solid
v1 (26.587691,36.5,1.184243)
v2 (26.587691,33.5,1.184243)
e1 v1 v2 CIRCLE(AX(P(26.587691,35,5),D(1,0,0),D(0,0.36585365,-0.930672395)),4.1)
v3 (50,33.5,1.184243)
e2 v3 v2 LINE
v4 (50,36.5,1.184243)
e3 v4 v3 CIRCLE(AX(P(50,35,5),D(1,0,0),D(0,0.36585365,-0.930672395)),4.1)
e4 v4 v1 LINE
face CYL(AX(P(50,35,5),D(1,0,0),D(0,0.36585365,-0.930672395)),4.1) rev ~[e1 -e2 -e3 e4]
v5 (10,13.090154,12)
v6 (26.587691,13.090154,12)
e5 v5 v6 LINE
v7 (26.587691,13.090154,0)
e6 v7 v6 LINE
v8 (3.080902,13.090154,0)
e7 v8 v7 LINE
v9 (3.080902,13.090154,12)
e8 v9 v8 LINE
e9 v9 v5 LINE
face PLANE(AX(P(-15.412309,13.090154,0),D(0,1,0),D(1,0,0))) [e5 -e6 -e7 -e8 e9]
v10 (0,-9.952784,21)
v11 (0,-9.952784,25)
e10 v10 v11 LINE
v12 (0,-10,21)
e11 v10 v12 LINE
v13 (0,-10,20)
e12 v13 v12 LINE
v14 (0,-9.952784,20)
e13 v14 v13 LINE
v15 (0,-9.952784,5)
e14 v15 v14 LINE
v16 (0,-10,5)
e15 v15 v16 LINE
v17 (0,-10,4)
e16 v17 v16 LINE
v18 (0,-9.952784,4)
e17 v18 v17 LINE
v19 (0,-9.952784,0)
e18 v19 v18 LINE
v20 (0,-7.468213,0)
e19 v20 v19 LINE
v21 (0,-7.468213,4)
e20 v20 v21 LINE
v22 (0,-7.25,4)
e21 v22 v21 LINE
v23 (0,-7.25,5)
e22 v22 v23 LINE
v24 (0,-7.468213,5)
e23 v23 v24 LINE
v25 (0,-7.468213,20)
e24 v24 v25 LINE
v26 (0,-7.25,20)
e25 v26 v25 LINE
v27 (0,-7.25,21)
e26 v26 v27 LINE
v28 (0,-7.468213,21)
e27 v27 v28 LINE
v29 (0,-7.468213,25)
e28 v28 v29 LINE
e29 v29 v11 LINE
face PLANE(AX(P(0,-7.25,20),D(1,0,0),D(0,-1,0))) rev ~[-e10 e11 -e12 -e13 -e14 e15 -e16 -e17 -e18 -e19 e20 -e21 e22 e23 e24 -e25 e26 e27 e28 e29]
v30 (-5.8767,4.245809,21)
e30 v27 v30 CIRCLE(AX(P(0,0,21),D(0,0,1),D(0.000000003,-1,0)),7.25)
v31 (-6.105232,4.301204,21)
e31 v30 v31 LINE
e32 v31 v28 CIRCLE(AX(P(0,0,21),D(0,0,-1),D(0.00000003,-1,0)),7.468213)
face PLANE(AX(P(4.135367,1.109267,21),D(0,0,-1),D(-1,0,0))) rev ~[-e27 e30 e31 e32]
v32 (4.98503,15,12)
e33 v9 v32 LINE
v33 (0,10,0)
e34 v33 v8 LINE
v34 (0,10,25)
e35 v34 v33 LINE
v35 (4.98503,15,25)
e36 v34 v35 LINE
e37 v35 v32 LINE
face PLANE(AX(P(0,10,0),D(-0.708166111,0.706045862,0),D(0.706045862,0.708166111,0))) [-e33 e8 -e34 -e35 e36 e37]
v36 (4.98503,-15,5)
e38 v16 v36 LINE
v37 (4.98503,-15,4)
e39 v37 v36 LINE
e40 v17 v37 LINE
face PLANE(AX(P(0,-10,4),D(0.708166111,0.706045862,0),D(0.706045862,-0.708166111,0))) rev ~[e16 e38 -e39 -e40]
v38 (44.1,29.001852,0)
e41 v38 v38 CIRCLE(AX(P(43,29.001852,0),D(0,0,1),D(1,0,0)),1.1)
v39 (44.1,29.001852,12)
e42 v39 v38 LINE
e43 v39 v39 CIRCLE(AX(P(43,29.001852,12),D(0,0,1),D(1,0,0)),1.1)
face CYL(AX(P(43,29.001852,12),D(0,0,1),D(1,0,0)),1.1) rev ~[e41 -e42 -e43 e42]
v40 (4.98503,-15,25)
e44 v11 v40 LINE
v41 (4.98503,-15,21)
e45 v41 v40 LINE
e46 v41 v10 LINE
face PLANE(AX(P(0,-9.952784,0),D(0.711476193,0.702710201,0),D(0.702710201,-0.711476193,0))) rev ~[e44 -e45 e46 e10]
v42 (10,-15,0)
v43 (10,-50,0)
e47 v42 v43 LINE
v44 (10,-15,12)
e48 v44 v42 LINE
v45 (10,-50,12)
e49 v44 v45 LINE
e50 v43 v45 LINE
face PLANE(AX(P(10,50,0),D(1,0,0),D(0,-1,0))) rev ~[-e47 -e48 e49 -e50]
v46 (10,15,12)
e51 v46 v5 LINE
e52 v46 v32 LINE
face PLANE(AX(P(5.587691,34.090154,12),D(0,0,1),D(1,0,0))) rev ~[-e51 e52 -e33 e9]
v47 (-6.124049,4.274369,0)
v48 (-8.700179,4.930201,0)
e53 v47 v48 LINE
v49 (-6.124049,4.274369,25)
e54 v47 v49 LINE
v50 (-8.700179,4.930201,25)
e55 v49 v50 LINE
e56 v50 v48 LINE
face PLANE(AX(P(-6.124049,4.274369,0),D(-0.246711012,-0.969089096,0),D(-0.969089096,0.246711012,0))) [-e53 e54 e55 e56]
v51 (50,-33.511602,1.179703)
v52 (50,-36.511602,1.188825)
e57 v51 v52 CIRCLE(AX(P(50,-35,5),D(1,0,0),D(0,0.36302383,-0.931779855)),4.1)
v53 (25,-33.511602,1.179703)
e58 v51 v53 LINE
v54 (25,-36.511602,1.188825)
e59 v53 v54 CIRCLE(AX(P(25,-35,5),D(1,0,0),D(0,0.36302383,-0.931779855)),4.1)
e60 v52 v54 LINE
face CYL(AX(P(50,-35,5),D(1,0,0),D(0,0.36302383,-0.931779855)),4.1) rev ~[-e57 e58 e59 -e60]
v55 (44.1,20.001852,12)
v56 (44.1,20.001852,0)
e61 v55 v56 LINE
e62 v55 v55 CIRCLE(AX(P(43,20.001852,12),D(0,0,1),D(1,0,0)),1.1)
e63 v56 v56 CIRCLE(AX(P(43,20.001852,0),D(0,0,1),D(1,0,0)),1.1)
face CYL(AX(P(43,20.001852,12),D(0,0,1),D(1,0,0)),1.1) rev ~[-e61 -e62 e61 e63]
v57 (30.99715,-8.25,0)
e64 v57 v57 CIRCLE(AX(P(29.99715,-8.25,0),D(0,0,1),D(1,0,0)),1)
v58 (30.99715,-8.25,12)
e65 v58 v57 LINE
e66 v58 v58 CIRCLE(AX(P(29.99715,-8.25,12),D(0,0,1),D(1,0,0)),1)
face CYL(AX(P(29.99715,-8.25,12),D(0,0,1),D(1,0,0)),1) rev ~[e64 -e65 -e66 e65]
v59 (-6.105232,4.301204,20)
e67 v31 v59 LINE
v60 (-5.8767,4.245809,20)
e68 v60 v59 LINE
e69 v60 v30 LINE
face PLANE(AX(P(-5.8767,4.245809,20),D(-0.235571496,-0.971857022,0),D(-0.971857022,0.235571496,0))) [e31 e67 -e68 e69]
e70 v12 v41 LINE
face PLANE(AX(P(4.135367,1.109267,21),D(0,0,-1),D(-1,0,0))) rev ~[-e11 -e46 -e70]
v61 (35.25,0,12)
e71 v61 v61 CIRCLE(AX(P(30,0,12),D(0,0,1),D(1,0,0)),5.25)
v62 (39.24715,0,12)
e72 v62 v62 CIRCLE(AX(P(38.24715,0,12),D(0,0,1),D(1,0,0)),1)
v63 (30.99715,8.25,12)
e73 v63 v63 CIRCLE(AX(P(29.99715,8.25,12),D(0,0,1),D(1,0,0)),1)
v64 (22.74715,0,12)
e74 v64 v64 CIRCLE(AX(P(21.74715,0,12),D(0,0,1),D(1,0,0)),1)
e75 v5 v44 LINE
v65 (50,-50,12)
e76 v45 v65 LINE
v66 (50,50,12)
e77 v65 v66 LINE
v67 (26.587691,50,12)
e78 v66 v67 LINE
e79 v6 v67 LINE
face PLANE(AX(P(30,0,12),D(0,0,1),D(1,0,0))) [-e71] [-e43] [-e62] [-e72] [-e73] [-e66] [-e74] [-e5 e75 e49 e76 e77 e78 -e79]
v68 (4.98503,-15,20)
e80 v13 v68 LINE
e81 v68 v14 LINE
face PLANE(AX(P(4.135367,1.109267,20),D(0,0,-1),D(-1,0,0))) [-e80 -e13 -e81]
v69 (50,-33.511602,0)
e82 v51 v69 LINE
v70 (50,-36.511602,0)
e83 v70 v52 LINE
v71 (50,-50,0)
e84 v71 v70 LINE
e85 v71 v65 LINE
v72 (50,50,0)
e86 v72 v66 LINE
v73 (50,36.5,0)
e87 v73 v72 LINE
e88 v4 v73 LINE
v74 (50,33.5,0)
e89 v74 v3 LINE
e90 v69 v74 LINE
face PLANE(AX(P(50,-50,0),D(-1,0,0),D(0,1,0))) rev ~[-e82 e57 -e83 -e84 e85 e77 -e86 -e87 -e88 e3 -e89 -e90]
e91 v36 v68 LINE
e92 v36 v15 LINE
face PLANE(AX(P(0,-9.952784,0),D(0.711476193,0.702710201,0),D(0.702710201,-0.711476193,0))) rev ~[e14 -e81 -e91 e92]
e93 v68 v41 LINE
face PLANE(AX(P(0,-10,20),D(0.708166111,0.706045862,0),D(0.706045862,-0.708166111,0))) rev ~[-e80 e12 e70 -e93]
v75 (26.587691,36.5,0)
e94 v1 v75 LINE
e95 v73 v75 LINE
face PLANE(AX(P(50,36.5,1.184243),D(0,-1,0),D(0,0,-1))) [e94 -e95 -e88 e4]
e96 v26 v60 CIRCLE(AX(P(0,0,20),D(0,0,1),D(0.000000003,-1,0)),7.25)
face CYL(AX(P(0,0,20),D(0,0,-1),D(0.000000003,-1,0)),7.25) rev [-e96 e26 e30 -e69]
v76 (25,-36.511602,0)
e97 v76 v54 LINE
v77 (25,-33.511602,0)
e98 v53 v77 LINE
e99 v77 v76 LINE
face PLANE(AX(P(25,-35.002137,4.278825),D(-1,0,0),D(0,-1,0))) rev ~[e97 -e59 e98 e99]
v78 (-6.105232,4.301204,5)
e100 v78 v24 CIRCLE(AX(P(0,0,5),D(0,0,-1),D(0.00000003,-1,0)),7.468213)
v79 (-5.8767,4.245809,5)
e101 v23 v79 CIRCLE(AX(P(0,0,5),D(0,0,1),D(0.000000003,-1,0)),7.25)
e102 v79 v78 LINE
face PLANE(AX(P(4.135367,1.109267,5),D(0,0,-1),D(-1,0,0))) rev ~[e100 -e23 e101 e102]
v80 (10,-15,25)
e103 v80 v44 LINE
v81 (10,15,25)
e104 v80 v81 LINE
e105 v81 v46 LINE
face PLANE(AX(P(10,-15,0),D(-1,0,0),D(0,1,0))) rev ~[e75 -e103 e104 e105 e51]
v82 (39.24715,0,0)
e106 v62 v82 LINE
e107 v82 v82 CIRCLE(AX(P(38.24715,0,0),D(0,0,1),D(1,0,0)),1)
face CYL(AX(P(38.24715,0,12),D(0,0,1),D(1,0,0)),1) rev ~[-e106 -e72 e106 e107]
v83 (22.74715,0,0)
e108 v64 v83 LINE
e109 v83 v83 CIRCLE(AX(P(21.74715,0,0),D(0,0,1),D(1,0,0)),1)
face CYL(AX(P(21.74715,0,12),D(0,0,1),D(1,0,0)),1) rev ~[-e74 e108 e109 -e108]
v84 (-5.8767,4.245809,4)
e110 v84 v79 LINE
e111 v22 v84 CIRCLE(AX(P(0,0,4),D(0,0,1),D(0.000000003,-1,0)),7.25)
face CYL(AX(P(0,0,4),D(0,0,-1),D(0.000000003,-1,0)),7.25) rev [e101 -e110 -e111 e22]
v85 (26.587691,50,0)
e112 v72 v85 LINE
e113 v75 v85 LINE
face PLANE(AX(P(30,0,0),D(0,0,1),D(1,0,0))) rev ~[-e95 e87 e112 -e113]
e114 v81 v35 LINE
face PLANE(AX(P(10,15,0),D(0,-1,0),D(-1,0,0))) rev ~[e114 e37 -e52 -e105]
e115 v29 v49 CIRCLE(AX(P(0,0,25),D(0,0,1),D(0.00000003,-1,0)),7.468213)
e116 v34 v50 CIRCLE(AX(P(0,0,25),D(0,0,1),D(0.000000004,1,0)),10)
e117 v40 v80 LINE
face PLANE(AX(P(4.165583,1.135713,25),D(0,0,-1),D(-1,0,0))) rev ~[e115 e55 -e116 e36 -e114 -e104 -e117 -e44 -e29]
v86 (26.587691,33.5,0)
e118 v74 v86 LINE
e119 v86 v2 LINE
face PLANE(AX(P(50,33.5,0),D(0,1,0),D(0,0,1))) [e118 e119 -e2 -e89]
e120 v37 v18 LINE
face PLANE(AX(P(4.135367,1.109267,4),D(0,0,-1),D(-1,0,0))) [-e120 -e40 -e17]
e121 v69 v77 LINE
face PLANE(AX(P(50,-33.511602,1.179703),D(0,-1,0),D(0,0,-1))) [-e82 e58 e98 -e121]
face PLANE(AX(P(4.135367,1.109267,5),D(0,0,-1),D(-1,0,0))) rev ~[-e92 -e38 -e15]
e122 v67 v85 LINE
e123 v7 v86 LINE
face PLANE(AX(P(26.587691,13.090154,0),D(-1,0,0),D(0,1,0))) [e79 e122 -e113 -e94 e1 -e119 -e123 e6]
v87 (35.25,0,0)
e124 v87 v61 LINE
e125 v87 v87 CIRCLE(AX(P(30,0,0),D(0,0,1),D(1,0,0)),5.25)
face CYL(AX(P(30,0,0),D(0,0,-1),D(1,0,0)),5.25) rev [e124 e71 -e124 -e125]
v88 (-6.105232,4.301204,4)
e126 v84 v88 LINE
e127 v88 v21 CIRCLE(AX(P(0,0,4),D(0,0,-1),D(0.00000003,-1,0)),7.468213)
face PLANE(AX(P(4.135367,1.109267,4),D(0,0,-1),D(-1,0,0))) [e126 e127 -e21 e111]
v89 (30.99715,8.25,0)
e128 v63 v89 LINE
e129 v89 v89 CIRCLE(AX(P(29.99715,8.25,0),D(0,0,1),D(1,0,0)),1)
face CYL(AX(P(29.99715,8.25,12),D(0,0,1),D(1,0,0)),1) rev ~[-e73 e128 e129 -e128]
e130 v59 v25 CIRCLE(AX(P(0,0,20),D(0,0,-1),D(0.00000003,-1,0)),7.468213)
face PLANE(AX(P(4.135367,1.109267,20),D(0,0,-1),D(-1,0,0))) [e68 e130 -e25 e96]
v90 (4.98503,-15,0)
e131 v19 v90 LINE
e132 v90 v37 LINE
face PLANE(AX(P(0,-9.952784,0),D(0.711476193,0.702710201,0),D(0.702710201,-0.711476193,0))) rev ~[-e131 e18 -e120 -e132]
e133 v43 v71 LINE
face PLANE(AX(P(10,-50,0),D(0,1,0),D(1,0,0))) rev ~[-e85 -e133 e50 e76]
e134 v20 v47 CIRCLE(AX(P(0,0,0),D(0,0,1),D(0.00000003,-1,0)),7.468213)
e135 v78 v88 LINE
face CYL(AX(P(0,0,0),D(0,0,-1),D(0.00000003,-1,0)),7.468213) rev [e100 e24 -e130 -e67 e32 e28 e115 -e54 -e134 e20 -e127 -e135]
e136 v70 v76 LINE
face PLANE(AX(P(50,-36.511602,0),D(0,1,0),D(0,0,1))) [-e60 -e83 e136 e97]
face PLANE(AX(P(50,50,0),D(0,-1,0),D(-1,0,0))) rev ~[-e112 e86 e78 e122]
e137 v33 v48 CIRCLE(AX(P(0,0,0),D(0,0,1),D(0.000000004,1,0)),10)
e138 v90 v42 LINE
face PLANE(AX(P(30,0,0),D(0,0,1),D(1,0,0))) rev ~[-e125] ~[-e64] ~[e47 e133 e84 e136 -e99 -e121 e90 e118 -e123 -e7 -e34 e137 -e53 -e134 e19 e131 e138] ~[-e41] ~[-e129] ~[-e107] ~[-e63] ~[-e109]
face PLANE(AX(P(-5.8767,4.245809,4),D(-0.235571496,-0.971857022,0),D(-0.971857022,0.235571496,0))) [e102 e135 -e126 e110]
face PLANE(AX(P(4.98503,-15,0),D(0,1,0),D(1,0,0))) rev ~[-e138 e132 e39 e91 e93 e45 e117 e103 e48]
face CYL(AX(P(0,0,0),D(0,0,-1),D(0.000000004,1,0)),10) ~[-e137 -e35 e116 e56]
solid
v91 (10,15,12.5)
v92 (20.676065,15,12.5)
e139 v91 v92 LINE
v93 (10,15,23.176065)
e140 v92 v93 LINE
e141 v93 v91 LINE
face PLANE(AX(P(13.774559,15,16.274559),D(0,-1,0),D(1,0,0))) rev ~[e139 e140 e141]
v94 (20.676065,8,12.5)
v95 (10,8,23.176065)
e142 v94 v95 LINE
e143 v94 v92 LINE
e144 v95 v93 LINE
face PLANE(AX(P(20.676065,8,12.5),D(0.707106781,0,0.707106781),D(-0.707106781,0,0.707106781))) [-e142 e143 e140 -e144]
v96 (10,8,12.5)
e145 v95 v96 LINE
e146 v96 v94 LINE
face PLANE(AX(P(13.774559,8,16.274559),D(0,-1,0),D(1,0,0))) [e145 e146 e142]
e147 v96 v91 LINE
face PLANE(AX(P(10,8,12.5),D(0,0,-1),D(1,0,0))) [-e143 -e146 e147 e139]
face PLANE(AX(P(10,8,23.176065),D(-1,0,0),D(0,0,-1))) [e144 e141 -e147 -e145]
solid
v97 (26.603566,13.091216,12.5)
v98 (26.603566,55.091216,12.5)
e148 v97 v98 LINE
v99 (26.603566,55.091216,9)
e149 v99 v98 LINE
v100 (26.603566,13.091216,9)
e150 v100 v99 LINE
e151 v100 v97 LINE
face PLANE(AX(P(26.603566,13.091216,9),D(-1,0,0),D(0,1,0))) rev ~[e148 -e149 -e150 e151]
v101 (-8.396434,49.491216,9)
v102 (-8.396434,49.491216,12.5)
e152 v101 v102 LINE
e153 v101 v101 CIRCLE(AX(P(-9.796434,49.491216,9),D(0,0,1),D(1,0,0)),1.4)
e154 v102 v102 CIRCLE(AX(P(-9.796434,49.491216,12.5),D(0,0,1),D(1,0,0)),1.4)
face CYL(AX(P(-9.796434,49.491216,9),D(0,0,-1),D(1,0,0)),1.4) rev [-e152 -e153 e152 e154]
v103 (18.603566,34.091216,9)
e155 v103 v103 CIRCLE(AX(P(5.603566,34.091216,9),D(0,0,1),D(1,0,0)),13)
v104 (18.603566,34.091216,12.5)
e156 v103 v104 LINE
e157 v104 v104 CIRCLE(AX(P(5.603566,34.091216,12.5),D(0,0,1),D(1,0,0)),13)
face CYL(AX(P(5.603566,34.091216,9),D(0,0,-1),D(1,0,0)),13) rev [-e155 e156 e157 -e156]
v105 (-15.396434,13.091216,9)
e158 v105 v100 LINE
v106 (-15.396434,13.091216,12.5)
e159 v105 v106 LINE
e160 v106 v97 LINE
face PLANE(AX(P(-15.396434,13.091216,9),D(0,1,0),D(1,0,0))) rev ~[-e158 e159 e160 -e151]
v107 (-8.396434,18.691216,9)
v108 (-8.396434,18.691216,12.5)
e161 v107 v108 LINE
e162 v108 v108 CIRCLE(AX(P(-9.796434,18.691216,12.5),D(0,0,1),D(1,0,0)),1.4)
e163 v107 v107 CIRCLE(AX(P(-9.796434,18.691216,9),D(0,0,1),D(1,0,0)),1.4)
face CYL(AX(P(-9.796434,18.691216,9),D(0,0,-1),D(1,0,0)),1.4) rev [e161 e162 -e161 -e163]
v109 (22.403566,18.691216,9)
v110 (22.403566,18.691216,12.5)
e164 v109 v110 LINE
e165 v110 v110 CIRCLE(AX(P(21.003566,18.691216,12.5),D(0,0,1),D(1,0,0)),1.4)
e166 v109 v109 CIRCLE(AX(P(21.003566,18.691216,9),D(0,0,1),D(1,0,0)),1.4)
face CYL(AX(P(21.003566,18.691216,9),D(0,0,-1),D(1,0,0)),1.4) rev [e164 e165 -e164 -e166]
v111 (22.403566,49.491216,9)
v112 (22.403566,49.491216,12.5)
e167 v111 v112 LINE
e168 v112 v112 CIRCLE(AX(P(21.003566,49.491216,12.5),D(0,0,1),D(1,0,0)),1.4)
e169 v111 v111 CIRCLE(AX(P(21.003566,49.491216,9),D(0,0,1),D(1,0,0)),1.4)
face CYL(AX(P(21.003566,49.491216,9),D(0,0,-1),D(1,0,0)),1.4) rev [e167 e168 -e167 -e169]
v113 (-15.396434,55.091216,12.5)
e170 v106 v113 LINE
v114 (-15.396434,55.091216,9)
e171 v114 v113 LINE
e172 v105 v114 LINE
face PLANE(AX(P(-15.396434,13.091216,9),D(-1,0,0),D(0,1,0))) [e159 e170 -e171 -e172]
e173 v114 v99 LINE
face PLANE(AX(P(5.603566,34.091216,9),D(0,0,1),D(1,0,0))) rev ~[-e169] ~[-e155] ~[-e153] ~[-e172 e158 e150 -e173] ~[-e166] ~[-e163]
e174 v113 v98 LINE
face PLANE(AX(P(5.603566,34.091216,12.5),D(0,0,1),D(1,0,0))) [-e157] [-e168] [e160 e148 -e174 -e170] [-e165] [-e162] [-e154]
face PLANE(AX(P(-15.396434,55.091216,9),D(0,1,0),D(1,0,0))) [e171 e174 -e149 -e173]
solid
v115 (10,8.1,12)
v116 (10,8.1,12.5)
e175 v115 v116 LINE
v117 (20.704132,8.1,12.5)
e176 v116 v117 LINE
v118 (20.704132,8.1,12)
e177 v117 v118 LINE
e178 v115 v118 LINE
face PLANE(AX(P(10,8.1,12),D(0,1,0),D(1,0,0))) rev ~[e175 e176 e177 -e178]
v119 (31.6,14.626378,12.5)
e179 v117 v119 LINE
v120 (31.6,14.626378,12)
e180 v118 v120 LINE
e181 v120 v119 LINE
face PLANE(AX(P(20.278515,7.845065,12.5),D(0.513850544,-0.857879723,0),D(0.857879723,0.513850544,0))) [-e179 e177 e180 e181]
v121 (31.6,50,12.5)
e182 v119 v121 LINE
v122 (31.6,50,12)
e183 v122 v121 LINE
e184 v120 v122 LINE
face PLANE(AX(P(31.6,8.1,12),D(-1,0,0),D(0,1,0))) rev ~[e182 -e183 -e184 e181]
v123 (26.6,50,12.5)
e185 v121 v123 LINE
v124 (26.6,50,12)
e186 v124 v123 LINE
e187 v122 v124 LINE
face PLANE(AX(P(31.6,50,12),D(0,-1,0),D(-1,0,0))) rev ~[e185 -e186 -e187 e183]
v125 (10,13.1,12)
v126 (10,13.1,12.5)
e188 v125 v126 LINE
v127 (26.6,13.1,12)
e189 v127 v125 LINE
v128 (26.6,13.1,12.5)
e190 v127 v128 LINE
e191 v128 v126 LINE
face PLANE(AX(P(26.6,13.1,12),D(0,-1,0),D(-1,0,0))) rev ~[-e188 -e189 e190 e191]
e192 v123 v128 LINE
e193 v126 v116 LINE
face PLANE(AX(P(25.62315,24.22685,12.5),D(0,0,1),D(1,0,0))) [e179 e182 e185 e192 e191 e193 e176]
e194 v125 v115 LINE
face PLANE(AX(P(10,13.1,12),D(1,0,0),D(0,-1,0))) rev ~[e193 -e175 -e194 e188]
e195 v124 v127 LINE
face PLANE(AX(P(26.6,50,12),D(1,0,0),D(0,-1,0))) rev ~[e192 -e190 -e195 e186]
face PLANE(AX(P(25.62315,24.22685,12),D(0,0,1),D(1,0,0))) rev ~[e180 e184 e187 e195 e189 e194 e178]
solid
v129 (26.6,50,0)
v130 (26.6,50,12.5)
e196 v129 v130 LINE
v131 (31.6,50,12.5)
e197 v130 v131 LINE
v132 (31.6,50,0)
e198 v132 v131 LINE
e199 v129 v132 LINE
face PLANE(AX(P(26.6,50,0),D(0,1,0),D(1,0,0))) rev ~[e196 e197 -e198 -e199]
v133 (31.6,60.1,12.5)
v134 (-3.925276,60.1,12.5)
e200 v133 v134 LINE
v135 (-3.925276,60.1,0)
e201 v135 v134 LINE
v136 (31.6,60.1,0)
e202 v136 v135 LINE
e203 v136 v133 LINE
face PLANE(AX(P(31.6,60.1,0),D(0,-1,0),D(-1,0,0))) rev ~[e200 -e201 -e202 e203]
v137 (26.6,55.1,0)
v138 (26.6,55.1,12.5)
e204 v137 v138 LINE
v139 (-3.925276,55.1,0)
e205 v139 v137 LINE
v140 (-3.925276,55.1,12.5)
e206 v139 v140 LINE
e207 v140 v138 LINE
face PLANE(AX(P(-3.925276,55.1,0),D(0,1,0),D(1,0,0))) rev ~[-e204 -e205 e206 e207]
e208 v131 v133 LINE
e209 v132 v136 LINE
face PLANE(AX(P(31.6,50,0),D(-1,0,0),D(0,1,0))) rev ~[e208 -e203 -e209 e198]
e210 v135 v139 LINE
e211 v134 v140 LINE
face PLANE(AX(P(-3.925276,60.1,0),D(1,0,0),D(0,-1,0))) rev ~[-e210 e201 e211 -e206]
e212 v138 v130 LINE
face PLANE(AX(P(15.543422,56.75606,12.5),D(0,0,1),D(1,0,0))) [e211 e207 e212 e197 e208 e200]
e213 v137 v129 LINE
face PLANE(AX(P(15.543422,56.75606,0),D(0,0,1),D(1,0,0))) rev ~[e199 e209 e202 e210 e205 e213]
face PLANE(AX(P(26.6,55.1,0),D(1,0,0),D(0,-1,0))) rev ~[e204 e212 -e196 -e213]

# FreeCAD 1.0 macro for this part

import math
import FreeCAD as App
import Part
import Sketcher
Q = App.Units.Quantity


def add_polygon(sketch, points):
    """Adds a closed chain of lines whose ends are joined by coincident constraints."""
    first, n = sketch.GeometryCount, len(points)
    for a, b in zip(points, points[1:] + points[:1]):
        sketch.addGeometry(Part.LineSegment(App.Vector(*a, 0), App.Vector(*b, 0)), False)
    for i in range(n):
        sketch.addConstraint(Sketcher.Constraint("Coincident", first + i, 2, first + (i + 1) % n, 1))

doc = App.newDocument("Part")
body = doc.addObject("PartDesign::Body", "Body")

sketch1 = body.newObject("Sketcher::SketchObject", "Sketch")
sketch1.AttachmentSupport = (doc.getObject("XY_Plane"), [""])
sketch1.MapMode = "FlatFace"
sketch1.AttachmentOffset = App.Placement(App.Vector(0, 0, 9), App.Rotation())
add_polygon(sketch1, [(-15.4, 55.1), (-15.4, 13.1), (26.6, 13.1), (26.6, 55.1)])
sketch1.addGeometry(Part.Circle(App.Vector(-9.8, 18.7, 0), App.Vector(0, 0, 1), 1.4), False)
sketch1.addGeometry(Part.Circle(App.Vector(21, 18.7, 0), App.Vector(0, 0, 1), 1.4), False)
sketch1.addGeometry(Part.Circle(App.Vector(5.6, 34.1, 0), App.Vector(0, 0, 1), 13), False)
sketch1.addGeometry(Part.Circle(App.Vector(-9.8, 49.5, 0), App.Vector(0, 0, 1), 1.4), False)
sketch1.addGeometry(Part.Circle(App.Vector(21, 49.5, 0), App.Vector(0, 0, 1), 1.4), False)
sketch1.addConstraint(Sketcher.Constraint("Vertical", 0))
sketch1.addConstraint(Sketcher.Constraint("Horizontal", 1))
sketch1.addConstraint(Sketcher.Constraint("Vertical", 2))
sketch1.addConstraint(Sketcher.Constraint("Horizontal", 3))
sketch1.addConstraint(Sketcher.Constraint("Equal", 4, 5))
sketch1.addConstraint(Sketcher.Constraint("Equal", 5, 7))
sketch1.addConstraint(Sketcher.Constraint("Equal", 7, 8))
sketch1.addConstraint(Sketcher.Constraint("Horizontal", 4, 3, 5, 3))
sketch1.addConstraint(Sketcher.Constraint("Horizontal", 7, 3, 8, 3))
sketch1.addConstraint(Sketcher.Constraint("Vertical", 4, 3, 7, 3))
sketch1.addConstraint(Sketcher.Constraint("Vertical", 5, 3, 8, 3))
sketch1.addConstraint(Sketcher.Constraint("Equal", 3, 0))
sketch1.addConstraint(Sketcher.Constraint("Diameter", 6, Q("26 mm")))
sketch1.addConstraint(Sketcher.Constraint("Diameter", 4, Q("2.8 mm")))
sketch1.addConstraint(Sketcher.Constraint("DistanceX", 1, 1, 1, 2, Q("42 mm")))
sketch1.addConstraint(Sketcher.Constraint("DistanceX", 0, 2, 6, 3, Q("21 mm")))
sketch1.addConstraint(Sketcher.Constraint("DistanceY", 0, 2, 6, 3, Q("21 mm")))
sketch1.addConstraint(Sketcher.Constraint("DistanceX", 4, 3, 5, 3, Q("30.8 mm")))
sketch1.addConstraint(Sketcher.Constraint("DistanceX", 4, 3, 6, 3, Q("15.4 mm")))
sketch1.addConstraint(Sketcher.Constraint("DistanceY", 4, 3, 6, 3, Q("15.4 mm")))
sketch1.addConstraint(Sketcher.Constraint("DistanceY", 6, 3, 7, 3, Q("15.4 mm")))
sketch1.addConstraint(Sketcher.Constraint("DistanceX", 4, 3, -1, 1, Q("9.796434 mm")))
sketch1.addConstraint(Sketcher.Constraint("DistanceY", -1, 1, 4, 3, Q("18.691216 mm")))
pad1 = body.newObject("PartDesign::Pad", "Pad")
pad1.Profile = sketch1
pad1.Length = 3.5
body2 = doc.addObject("PartDesign::Body", "Body001")

sketch2 = body2.newObject("Sketcher::SketchObject", "Sketch001")
sketch2.AttachmentSupport = (doc.getObject("XY_Plane001"), [""])
sketch2.MapMode = "FlatFace"
sketch2.AttachmentOffset = App.Placement(App.Vector(0, 0, 12), App.Rotation())
add_polygon(sketch2, [(27, 13), (10, 13), (10, 8), (32, 8), (32, 50), (27, 50)])
sketch2.addConstraint(Sketcher.Constraint("Horizontal", 0))
sketch2.addConstraint(Sketcher.Constraint("Vertical", 1))
sketch2.addConstraint(Sketcher.Constraint("Horizontal", 2))
sketch2.addConstraint(Sketcher.Constraint("Vertical", 3))
sketch2.addConstraint(Sketcher.Constraint("Horizontal", 4))
sketch2.addConstraint(Sketcher.Constraint("Vertical", 5))
sketch2.addConstraint(Sketcher.Constraint("Equal", 4, 1))
sketch2.addConstraint(Sketcher.Constraint("DistanceX", 4, 2, 4, 1, Q("5 mm")))
sketch2.addConstraint(Sketcher.Constraint("DistanceX", 0, 2, 0, 1, Q("16.6 mm")))
sketch2.addConstraint(Sketcher.Constraint("DistanceY", 3, 1, 3, 2, Q("41.9 mm")))
sketch2.addConstraint(Sketcher.Constraint("DistanceX", -1, 1, 0, 2, Q("10 mm")))
sketch2.addConstraint(Sketcher.Constraint("DistanceY", -1, 1, 3, 2, Q("50 mm")))
pad2 = body2.newObject("PartDesign::Pad", "Pad001")
pad2.Profile = sketch2
pad2.Length = 0.5

sketch3 = body2.newObject("Sketcher::SketchObject", "Sketch002")
sketch3.AttachmentSupport = (doc.getObject("XY_Plane001"), [""])
sketch3.MapMode = "FlatFace"
sketch3.AttachmentOffset = App.Placement(App.Vector(0, 0, 12.5), App.Rotation())
add_polygon(sketch3, [(32, 15), (20, 8), (32, 8)])
sketch3.addConstraint(Sketcher.Constraint("Horizontal", 1))
sketch3.addConstraint(Sketcher.Constraint("Vertical", 2))
sketch3.addConstraint(Sketcher.Constraint("Distance", 0, Q("13.531902 mm")))
sketch3.addConstraint(Sketcher.Constraint("DistanceX", 1, 1, 1, 2, Q("11.608744 mm")))
sketch3.addConstraint(Sketcher.Constraint("DistanceX", -1, 1, 1, 2, Q("31.887259 mm")))
sketch3.addConstraint(Sketcher.Constraint("DistanceY", -1, 1, 2, 2, Q("14.79844 mm")))
pocket1 = body2.newObject("PartDesign::Pocket", "Pocket")
pocket1.Profile = sketch3
pocket1.Length = 30
body3 = doc.addObject("PartDesign::Body", "Body002")

sketch4 = body3.newObject("Sketcher::SketchObject", "Sketch003")
sketch4.AttachmentSupport = (doc.getObject("XY_Plane002"), [""])
sketch4.MapMode = "FlatFace"
add_polygon(sketch4, [(27, 50), (32, 50), (32, 60), (-4, 60), (-4, 55), (27, 55)])
sketch4.addConstraint(Sketcher.Constraint("Horizontal", 0))
sketch4.addConstraint(Sketcher.Constraint("Vertical", 1))
sketch4.addConstraint(Sketcher.Constraint("Horizontal", 2))
sketch4.addConstraint(Sketcher.Constraint("Vertical", 3))
sketch4.addConstraint(Sketcher.Constraint("Horizontal", 4))
sketch4.addConstraint(Sketcher.Constraint("Vertical", 5))
sketch4.addConstraint(Sketcher.Constraint("Equal", 0, 3))
sketch4.addConstraint(Sketcher.Constraint("DistanceX", 0, 1, 0, 2, Q("5 mm")))
sketch4.addConstraint(Sketcher.Constraint("DistanceY", 1, 1, 1, 2, Q("10.1 mm")))
sketch4.addConstraint(Sketcher.Constraint("DistanceY", -1, 1, 0, 2, Q("50 mm")))
sketch4.addConstraint(Sketcher.Constraint("DistanceX", -1, 1, 0, 2, Q("31.6 mm")))
sketch4.addConstraint(Sketcher.Constraint("DistanceX", 2, 2, 2, 1, Q("35.525276 mm")))
pad3 = body3.newObject("PartDesign::Pad", "Pad002")
pad3.Profile = sketch4
pad3.Length = 12.5
body4 = doc.addObject("PartDesign::Body", "Body003")

sketch5 = body4.newObject("Sketcher::SketchObject", "Sketch004")
sketch5.AttachmentSupport = (doc.getObject("XZ_Plane003"), [""])
sketch5.MapMode = "FlatFace"
sketch5.AttachmentOffset = App.Placement(App.Vector(0, 0, -8), App.Rotation())
add_polygon(sketch5, [(10, 23), (10, 12), (21, 12)])
sketch5.addConstraint(Sketcher.Constraint("Vertical", 0))
sketch5.addConstraint(Sketcher.Constraint("Horizontal", 1))
sketch5.addConstraint(Sketcher.Constraint("Equal", 1, 0))
sketch5.addConstraint(Sketcher.Constraint("DistanceX", -1, 1, 0, 2, Q("10 mm")))
sketch5.addConstraint(Sketcher.Constraint("DistanceY", -1, 1, 0, 2, Q("12.5 mm")))
sketch5.addConstraint(Sketcher.Constraint("DistanceX", 1, 1, 1, 2, Q("10.676065 mm")))
pad4 = body4.newObject("PartDesign::Pad", "Pad003")
pad4.Profile = sketch5
pad4.Length = 7
pad4.Reversed = True
body5 = doc.addObject("PartDesign::Body", "Body004")

sketch6 = body5.newObject("Sketcher::SketchObject", "Sketch005")
sketch6.AttachmentSupport = (doc.getObject("XY_Plane004"), [""])
sketch6.MapMode = "FlatFace"
add_polygon(sketch6, [(-15, 55), (-15, 13), (27, 13), (27, 55)])
sketch6.addConstraint(Sketcher.Constraint("Vertical", 0))
sketch6.addConstraint(Sketcher.Constraint("Horizontal", 1))
sketch6.addConstraint(Sketcher.Constraint("Vertical", 2))
sketch6.addConstraint(Sketcher.Constraint("Horizontal", 3))
sketch6.addConstraint(Sketcher.Constraint("Equal", 3, 0))
sketch6.addConstraint(Sketcher.Constraint("DistanceX", 1, 1, 1, 2, Q("42 mm")))
sketch6.addConstraint(Sketcher.Constraint("DistanceX", 0, 2, -1, 1, Q("15.412309 mm")))
sketch6.addConstraint(Sketcher.Constraint("DistanceY", -1, 1, 0, 2, Q("13.090154 mm")))
pad5 = body5.newObject("PartDesign::Pad", "Pad004")
pad5.Profile = sketch6
pad5.Length = 12
body6 = doc.addObject("PartDesign::Body", "Body005")

sketch7 = body6.newObject("Sketcher::SketchObject", "Sketch006")
sketch7.AttachmentSupport = (doc.getObject("XY_Plane005"), [""])
sketch7.MapMode = "FlatFace"
add_polygon(sketch7, [(50, -50), (50, 50), (10, 50), (10, -50)])
sketch7.addGeometry(Part.Circle(App.Vector(30, 0, 0), App.Vector(0, 0, 1), 5), False)
sketch7.addConstraint(Sketcher.Constraint("Vertical", 0))
sketch7.addConstraint(Sketcher.Constraint("Horizontal", 1))
sketch7.addConstraint(Sketcher.Constraint("Vertical", 2))
sketch7.addConstraint(Sketcher.Constraint("Horizontal", 3))
sketch7.addConstraint(Sketcher.Constraint("PointOnObject", 4, 3, -1))
sketch7.addConstraint(Sketcher.Constraint("Diameter", 4, Q("10.5 mm")))
sketch7.addConstraint(Sketcher.Constraint("DistanceX", 1, 2, 1, 1, Q("40 mm")))
sketch7.addConstraint(Sketcher.Constraint("DistanceY", 0, 1, 0, 2, Q("100 mm")))
sketch7.addConstraint(Sketcher.Constraint("DistanceX", -1, 1, 4, 3, Q("30 mm")))
sketch7.addConstraint(Sketcher.Constraint("DistanceX", -1, 1, 0, 2, Q("50 mm")))
sketch7.addConstraint(Sketcher.Constraint("DistanceY", -1, 1, 0, 2, Q("50 mm")))
pad6 = body6.newObject("PartDesign::Pad", "Pad005")
pad6.Profile = sketch7
pad6.Length = 12

sketch8 = body6.newObject("Sketcher::SketchObject", "Sketch007")
sketch8.AttachmentSupport = (doc.getObject("YZ_Plane005"), [""])
sketch8.MapMode = "FlatFace"
sketch8.AttachmentOffset = App.Placement(App.Vector(0, 0, 50), App.Rotation())
sketch8.addGeometry(Part.LineSegment(App.Vector(-33.5, 0, 0), App.Vector(-33.5, 1.2, 0)), False)
sketch8.addGeometry(Part.ArcOfCircle(Part.Circle(App.Vector(-35, 5, 0), App.Vector(0, 0, 1), 4.1), math.radians(-69), math.radians(248)), False)
sketch8.addGeometry(Part.LineSegment(App.Vector(-36.5, 1.2, 0), App.Vector(-36.5, 0, 0)), False)
sketch8.addGeometry(Part.LineSegment(App.Vector(-36.5, 0, 0), App.Vector(-33.5, 0, 0)), False)
sketch8.addGeometry(Part.LineSegment(App.Vector(36.5, 0, 0), App.Vector(36.5, 1.2, 0)), False)
sketch8.addGeometry(Part.ArcOfCircle(Part.Circle(App.Vector(35, 5, 0), App.Vector(0, 0, 1), 4.1), math.radians(-69), math.radians(249)), False)
sketch8.addGeometry(Part.LineSegment(App.Vector(33.5, 1.2, 0), App.Vector(33.5, 0, 0)), False)
sketch8.addGeometry(Part.LineSegment(App.Vector(33.5, 0, 0), App.Vector(36.5, 0, 0)), False)
sketch8.addConstraint(Sketcher.Constraint("Coincident", 0, 2, 1, 1))
sketch8.addConstraint(Sketcher.Constraint("Coincident", 1, 2, 2, 1))
sketch8.addConstraint(Sketcher.Constraint("Coincident", 2, 2, 3, 1))
sketch8.addConstraint(Sketcher.Constraint("Coincident", 3, 2, 0, 1))
sketch8.addConstraint(Sketcher.Constraint("Coincident", 4, 2, 5, 1))
sketch8.addConstraint(Sketcher.Constraint("Coincident", 5, 2, 6, 1))
sketch8.addConstraint(Sketcher.Constraint("Coincident", 6, 2, 7, 1))
sketch8.addConstraint(Sketcher.Constraint("Coincident", 7, 2, 4, 1))
sketch8.addConstraint(Sketcher.Constraint("Vertical", 0))
sketch8.addConstraint(Sketcher.Constraint("Vertical", 2))
sketch8.addConstraint(Sketcher.Constraint("Horizontal", 3))
sketch8.addConstraint(Sketcher.Constraint("Vertical", 4))
sketch8.addConstraint(Sketcher.Constraint("Vertical", 6))
sketch8.addConstraint(Sketcher.Constraint("Horizontal", 7))
sketch8.addConstraint(Sketcher.Constraint("Equal", 1, 5))
sketch8.addConstraint(Sketcher.Constraint("Symmetric", 1, 3, 5, 3, -2))
sketch8.addConstraint(Sketcher.Constraint("PointOnObject", 2, 2, -1))
sketch8.addConstraint(Sketcher.Constraint("PointOnObject", 6, 2, -1))
sketch8.addConstraint(Sketcher.Constraint("Horizontal", 4, 2, 5, 2))
sketch8.addConstraint(Sketcher.Constraint("Equal", 3, 7))
sketch8.addConstraint(Sketcher.Constraint("Radius", 1, Q("4.1 mm")))
sketch8.addConstraint(Sketcher.Constraint("DistanceX", 3, 1, 3, 2, Q("3 mm")))
sketch8.addConstraint(Sketcher.Constraint("DistanceX", 1, 3, -1, 1, Q("35 mm")))
sketch8.addConstraint(Sketcher.Constraint("DistanceY", -1, 1, 1, 3, Q("5 mm")))
sketch8.addConstraint(Sketcher.Constraint("DistanceX", 1, 2, -1, 1, Q("36.511602 mm")))
pocket2 = body6.newObject("PartDesign::Pocket", "Pocket001")
pocket2.Profile = sketch8
pocket2.Length = 25

sketch9 = body6.newObject("Sketcher::SketchObject", "Sketch008")
sketch9.AttachmentSupport = (doc.getObject("XY_Plane005"), [""])
sketch9.MapMode = "FlatFace"
sketch9.AttachmentOffset = App.Placement(App.Vector(0, 0, 12), App.Rotation())
sketch9.addGeometry(Part.Circle(App.Vector(30, 8.2, 0), App.Vector(0, 0, 1), 1), False)
sketch9.addGeometry(Part.Circle(App.Vector(21.7, 0, 0), App.Vector(0, 0, 1), 1), False)
sketch9.addGeometry(Part.Circle(App.Vector(38.2, 0, 0), App.Vector(0, 0, 1), 1), False)
sketch9.addGeometry(Part.Circle(App.Vector(30, -8.2, 0), App.Vector(0, 0, 1), 1), False)
sketch9.addConstraint(Sketcher.Constraint("Equal", 0, 1))
sketch9.addConstraint(Sketcher.Constraint("Equal", 1, 2))
sketch9.addConstraint(Sketcher.Constraint("Equal", 2, 3))
sketch9.addConstraint(Sketcher.Constraint("Symmetric", 0, 3, 3, 3, -1))
sketch9.addConstraint(Sketcher.Constraint("PointOnObject", 1, 3, -1))
sketch9.addConstraint(Sketcher.Constraint("PointOnObject", 2, 3, -1))
sketch9.addConstraint(Sketcher.Constraint("Diameter", 0, Q("2 mm")))
sketch9.addConstraint(Sketcher.Constraint("DistanceX", 1, 3, 2, 3, Q("16.5 mm")))
sketch9.addConstraint(Sketcher.Constraint("DistanceY", 3, 3, 0, 3, Q("16.5 mm")))
sketch9.addConstraint(Sketcher.Constraint("DistanceX", 1, 3, 0, 3, Q("8.25 mm")))
sketch9.addConstraint(Sketcher.Constraint("DistanceX", -1, 1, 0, 3, Q("29.99715 mm")))
pocket3 = body6.newObject("PartDesign::Pocket", "Pocket002")
pocket3.Profile = sketch9
pocket3.Length = 12

sketch10 = body6.newObject("Sketcher::SketchObject", "Sketch009")
sketch10.AttachmentSupport = (doc.getObject("XY_Plane005"), [""])
sketch10.MapMode = "FlatFace"
sketch10.AttachmentOffset = App.Placement(App.Vector(0, 0, 12), App.Rotation())
sketch10.addGeometry(Part.Circle(App.Vector(43, 29, 0), App.Vector(0, 0, 1), 1.1), False)
sketch10.addGeometry(Part.Circle(App.Vector(43, 20, 0), App.Vector(0, 0, 1), 1.1), False)
sketch10.addConstraint(Sketcher.Constraint("Equal", 0, 1))
sketch10.addConstraint(Sketcher.Constraint("Vertical", 0, 3, 1, 3))
sketch10.addConstraint(Sketcher.Constraint("Diameter", 0, Q("2.2 mm")))
sketch10.addConstraint(Sketcher.Constraint("DistanceX", -1, 1, 0, 3, Q("43 mm")))
sketch10.addConstraint(Sketcher.Constraint("DistanceY", 1, 3, 0, 3, Q("9 mm")))
sketch10.addConstraint(Sketcher.Constraint("DistanceY", -1, 1, 0, 3, Q("29.001852 mm")))
pocket4 = body6.newObject("PartDesign::Pocket", "Pocket003")
pocket4.Profile = sketch10
pocket4.Length = 12
body7 = doc.addObject("PartDesign::Body", "Body006")

sketch11 = body7.newObject("Sketcher::SketchObject", "Sketch010")
sketch11.AttachmentSupport = (doc.getObject("XY_Plane006"), [""])
sketch11.MapMode = "FlatFace"
sketch11.AttachmentOffset = App.Placement(App.Vector(0, 0, 32), App.Rotation())
sketch11.addGeometry(Part.LineSegment(App.Vector(-8.7, 4.9, 0), App.Vector(-5.9, 4.2, 0)), False)
sketch11.addGeometry(Part.ArcOfCircle(Part.Circle(App.Vector(0, 0, 0), App.Vector(0, 0, 1), 7.2), math.radians(-90), math.radians(144)), False)
sketch11.addGeometry(Part.LineSegment(App.Vector(0, -7.2, 0), App.Vector(0, -10, 0)), False)
sketch11.addGeometry(Part.LineSegment(App.Vector(0, -10, 0), App.Vector(5, -15, 0)), False)
sketch11.addGeometry(Part.LineSegment(App.Vector(5, -15, 0), App.Vector(10, -15, 0)), False)
sketch11.addGeometry(Part.LineSegment(App.Vector(10, -15, 0), App.Vector(10, 15, 0)), False)
sketch11.addGeometry(Part.LineSegment(App.Vector(10, 15, 0), App.Vector(5, 15, 0)), False)
sketch11.addGeometry(Part.LineSegment(App.Vector(5, 15, 0), App.Vector(0, 10, 0)), False)
sketch11.addGeometry(Part.ArcOfCircle(Part.Circle(App.Vector(0, 0, 0), App.Vector(0, 0, 1), 10), math.radians(90), math.radians(150)), False)
sketch11.addConstraint(Sketcher.Constraint("Coincident", 0, 2, 1, 2))
sketch11.addConstraint(Sketcher.Constraint("Coincident", 1, 1, 2, 1))
sketch11.addConstraint(Sketcher.Constraint("Coincident", 2, 2, 3, 1))
sketch11.addConstraint(Sketcher.Constraint("Coincident", 3, 2, 4, 1))
sketch11.addConstraint(Sketcher.Constraint("Coincident", 4, 2, 5, 1))
sketch11.addConstraint(Sketcher.Constraint("Coincident", 5, 2, 6, 1))
sketch11.addConstraint(Sketcher.Constraint("Coincident", 6, 2, 7, 1))
sketch11.addConstraint(Sketcher.Constraint("Coincident", 7, 2, 8, 1))
sketch11.addConstraint(Sketcher.Constraint("Coincident", 8, 2, 0, 1))
sketch11.addConstraint(Sketcher.Constraint("Vertical", 2))
sketch11.addConstraint(Sketcher.Constraint("Horizontal", 4))
sketch11.addConstraint(Sketcher.Constraint("Vertical", 5))
sketch11.addConstraint(Sketcher.Constraint("Horizontal", 6))
sketch11.addConstraint(Sketcher.Constraint("Coincident", 1, 3, -1, 1))
sketch11.addConstraint(Sketcher.Constraint("Coincident", 8, 3, -1, 1))
sketch11.addConstraint(Sketcher.Constraint("Symmetric", 2, 2, 7, 2, -1, 1))
sketch11.addConstraint(Sketcher.Constraint("Symmetric", 3, 2, 6, 2, -1))
sketch11.addConstraint(Sketcher.Constraint("PointOnObject", 1, 1, -2))
sketch11.addConstraint(Sketcher.Constraint("Radius", 8, Q("10 mm")))
sketch11.addConstraint(Sketcher.Constraint("DistanceY", 5, 1, 5, 2, Q("30 mm")))
sketch11.addConstraint(Sketcher.Constraint("Radius", 1, Q("7.25 mm")))
sketch11.addConstraint(Sketcher.Constraint("DistanceX", -1, 1, 4, 2, Q("10 mm")))
sketch11.addConstraint(Sketcher.Constraint("DistanceX", 4, 1, 4, 2, Q("5.01497 mm")))
sketch11.addConstraint(Sketcher.Constraint("DistanceX", 0, 2, -1, 1, Q("5.8767 mm")))
sketch11.addConstraint(Sketcher.Constraint("DistanceY", -1, 1, 8, 2, Q("4.930201 mm")))
pad7 = body7.newObject("PartDesign::Pad", "Pad006")
pad7.Profile = sketch11
pad7.Length = 1
body8 = doc.addObject("PartDesign::Body", "Body007")

sketch12 = body8.newObject("Sketcher::SketchObject", "Sketch011")
sketch12.AttachmentSupport = (doc.getObject("XY_Plane007"), [""])
sketch12.MapMode = "FlatFace"
sketch12.AttachmentOffset = App.Placement(App.Vector(0, 0, 48), App.Rotation())
sketch12.addGeometry(Part.LineSegment(App.Vector(-8.7, 4.9, 0), App.Vector(-5.9, 4.2, 0)), False)
sketch12.addGeometry(Part.ArcOfCircle(Part.Circle(App.Vector(0, 0, 0), App.Vector(0, 0, 1), 7.2), math.radians(-90), math.radians(144)), False)
sketch12.addGeometry(Part.LineSegment(App.Vector(0, -7.2, 0), App.Vector(0, -10, 0)), False)
sketch12.addGeometry(Part.LineSegment(App.Vector(0, -10, 0), App.Vector(5, -15, 0)), False)
sketch12.addGeometry(Part.LineSegment(App.Vector(5, -15, 0), App.Vector(10, -15, 0)), False)
sketch12.addGeometry(Part.LineSegment(App.Vector(10, -15, 0), App.Vector(10, 15, 0)), False)
sketch12.addGeometry(Part.LineSegment(App.Vector(10, 15, 0), App.Vector(5, 15, 0)), False)
sketch12.addGeometry(Part.LineSegment(App.Vector(5, 15, 0), App.Vector(0, 10, 0)), False)
sketch12.addGeometry(Part.ArcOfCircle(Part.Circle(App.Vector(0, 0, 0), App.Vector(0, 0, 1), 10), math.radians(90), math.radians(150)), False)
sketch12.addConstraint(Sketcher.Constraint("Coincident", 0, 2, 1, 2))
sketch12.addConstraint(Sketcher.Constraint("Coincident", 1, 1, 2, 1))
sketch12.addConstraint(Sketcher.Constraint("Coincident", 2, 2, 3, 1))
sketch12.addConstraint(Sketcher.Constraint("Coincident", 3, 2, 4, 1))
sketch12.addConstraint(Sketcher.Constraint("Coincident", 4, 2, 5, 1))
sketch12.addConstraint(Sketcher.Constraint("Coincident", 5, 2, 6, 1))
sketch12.addConstraint(Sketcher.Constraint("Coincident", 6, 2, 7, 1))
sketch12.addConstraint(Sketcher.Constraint("Coincident", 7, 2, 8, 1))
sketch12.addConstraint(Sketcher.Constraint("Coincident", 8, 2, 0, 1))
sketch12.addConstraint(Sketcher.Constraint("Vertical", 2))
sketch12.addConstraint(Sketcher.Constraint("Horizontal", 4))
sketch12.addConstraint(Sketcher.Constraint("Vertical", 5))
sketch12.addConstraint(Sketcher.Constraint("Horizontal", 6))
sketch12.addConstraint(Sketcher.Constraint("Coincident", 1, 3, -1, 1))
sketch12.addConstraint(Sketcher.Constraint("Coincident", 8, 3, -1, 1))
sketch12.addConstraint(Sketcher.Constraint("Symmetric", 2, 2, 7, 2, -1, 1))
sketch12.addConstraint(Sketcher.Constraint("Symmetric", 3, 2, 6, 2, -1))
sketch12.addConstraint(Sketcher.Constraint("PointOnObject", 1, 1, -2))
sketch12.addConstraint(Sketcher.Constraint("Radius", 8, Q("10 mm")))
sketch12.addConstraint(Sketcher.Constraint("DistanceY", 5, 1, 5, 2, Q("30 mm")))
sketch12.addConstraint(Sketcher.Constraint("Radius", 1, Q("7.25 mm")))
sketch12.addConstraint(Sketcher.Constraint("DistanceX", -1, 1, 4, 2, Q("10 mm")))
sketch12.addConstraint(Sketcher.Constraint("DistanceX", 4, 1, 4, 2, Q("5.01497 mm")))
sketch12.addConstraint(Sketcher.Constraint("DistanceX", 0, 2, -1, 1, Q("5.8767 mm")))
sketch12.addConstraint(Sketcher.Constraint("DistanceY", -1, 1, 8, 2, Q("4.930201 mm")))
pad8 = body8.newObject("PartDesign::Pad", "Pad007")
pad8.Profile = sketch12
pad8.Length = 1
body9 = doc.addObject("PartDesign::Body", "Body008")

sketch13 = body9.newObject("Sketcher::SketchObject", "Sketch012")
sketch13.AttachmentSupport = (doc.getObject("XY_Plane008"), [""])
sketch13.MapMode = "FlatFace"
sketch13.AttachmentOffset = App.Placement(App.Vector(0, 0, 28), App.Rotation())
sketch13.addGeometry(Part.LineSegment(App.Vector(-8.7, 4.9, 0), App.Vector(-6.1, 4.3, 0)), False)
sketch13.addGeometry(Part.ArcOfCircle(Part.Circle(App.Vector(0, 0, 0), App.Vector(0, 0, 1), 7.5), math.radians(-90), math.radians(145)), False)
sketch13.addGeometry(Part.LineSegment(App.Vector(0, -7.5, 0), App.Vector(0, -10, 0)), False)
sketch13.addGeometry(Part.LineSegment(App.Vector(0, -10, 0), App.Vector(5, -15, 0)), False)
sketch13.addGeometry(Part.LineSegment(App.Vector(5, -15, 0), App.Vector(10, -15, 0)), False)
sketch13.addGeometry(Part.LineSegment(App.Vector(10, -15, 0), App.Vector(10, 15, 0)), False)
sketch13.addGeometry(Part.LineSegment(App.Vector(10, 15, 0), App.Vector(5, 15, 0)), False)
sketch13.addGeometry(Part.LineSegment(App.Vector(5, 15, 0), App.Vector(0, 10, 0)), False)
sketch13.addGeometry(Part.ArcOfCircle(Part.Circle(App.Vector(0, 0, 0), App.Vector(0, 0, 1), 10), math.radians(90), math.radians(150)), False)
sketch13.addConstraint(Sketcher.Constraint("Coincident", 0, 2, 1, 2))
sketch13.addConstraint(Sketcher.Constraint("Coincident", 1, 1, 2, 1))
sketch13.addConstraint(Sketcher.Constraint("Coincident", 2, 2, 3, 1))
sketch13.addConstraint(Sketcher.Constraint("Coincident", 3, 2, 4, 1))
sketch13.addConstraint(Sketcher.Constraint("Coincident", 4, 2, 5, 1))
sketch13.addConstraint(Sketcher.Constraint("Coincident", 5, 2, 6, 1))
sketch13.addConstraint(Sketcher.Constraint("Coincident", 6, 2, 7, 1))
sketch13.addConstraint(Sketcher.Constraint("Coincident", 7, 2, 8, 1))
sketch13.addConstraint(Sketcher.Constraint("Coincident", 8, 2, 0, 1))
sketch13.addConstraint(Sketcher.Constraint("Vertical", 2))
sketch13.addConstraint(Sketcher.Constraint("Horizontal", 4))
sketch13.addConstraint(Sketcher.Constraint("Vertical", 5))
sketch13.addConstraint(Sketcher.Constraint("Horizontal", 6))
sketch13.addConstraint(Sketcher.Constraint("Coincident", 1, 3, -1, 1))
sketch13.addConstraint(Sketcher.Constraint("Coincident", 8, 3, -1, 1))
sketch13.addConstraint(Sketcher.Constraint("Symmetric", 3, 2, 6, 2, -1))
sketch13.addConstraint(Sketcher.Constraint("PointOnObject", 1, 1, -2))
sketch13.addConstraint(Sketcher.Constraint("PointOnObject", 7, 2, -2))
sketch13.addConstraint(Sketcher.Constraint("Radius", 8, Q("10 mm")))
sketch13.addConstraint(Sketcher.Constraint("DistanceY", 5, 1, 5, 2, Q("30 mm")))
sketch13.addConstraint(Sketcher.Constraint("DistanceX", -1, 1, 4, 2, Q("10 mm")))
sketch13.addConstraint(Sketcher.Constraint("Radius", 1, Q("7.468213 mm")))
sketch13.addConstraint(Sketcher.Constraint("Distance", 0, Q("2.6583 mm")))
sketch13.addConstraint(Sketcher.Constraint("DistanceX", 4, 1, 4, 2, Q("5.01497 mm")))
sketch13.addConstraint(Sketcher.Constraint("DistanceY", 2, 2, 2, 1, Q("2.484571 mm")))
sketch13.addConstraint(Sketcher.Constraint("DistanceY", -1, 1, 8, 2, Q("4.930201 mm")))
pad9 = body9.newObject("PartDesign::Pad", "Pad008")
pad9.Profile = sketch13
pad9.Length = 25
doc.recompute()

boolean = body9.newObject("PartDesign::Boolean", "Boolean")
boolean.Type = "Fuse"
boolean.addObjects([body7])
doc.recompute()

boolean2 = body9.newObject("PartDesign::Boolean", "Boolean001")
boolean2.Type = "Fuse"
boolean2.addObjects([body8])
body10 = doc.addObject("PartDesign::Body", "Body009")
doc.recompute()

body9.Placement = App.Placement(App.Vector(0, 0, -28), App.Rotation(App.Vector(0, 0, 1), 0))
boolean3 = body10.newObject("PartDesign::Boolean", "Boolean002")
boolean3.Type = "Fuse"
boolean3.addObjects([body9])
doc.recompute()

boolean4 = body10.newObject("PartDesign::Boolean", "Boolean003")
boolean4.Type = "Fuse"
boolean4.addObjects([body6])
doc.recompute()

boolean5 = body10.newObject("PartDesign::Boolean", "Boolean004")
boolean5.Type = "Cut"
boolean5.addObjects([body5])

doc.recompute()
